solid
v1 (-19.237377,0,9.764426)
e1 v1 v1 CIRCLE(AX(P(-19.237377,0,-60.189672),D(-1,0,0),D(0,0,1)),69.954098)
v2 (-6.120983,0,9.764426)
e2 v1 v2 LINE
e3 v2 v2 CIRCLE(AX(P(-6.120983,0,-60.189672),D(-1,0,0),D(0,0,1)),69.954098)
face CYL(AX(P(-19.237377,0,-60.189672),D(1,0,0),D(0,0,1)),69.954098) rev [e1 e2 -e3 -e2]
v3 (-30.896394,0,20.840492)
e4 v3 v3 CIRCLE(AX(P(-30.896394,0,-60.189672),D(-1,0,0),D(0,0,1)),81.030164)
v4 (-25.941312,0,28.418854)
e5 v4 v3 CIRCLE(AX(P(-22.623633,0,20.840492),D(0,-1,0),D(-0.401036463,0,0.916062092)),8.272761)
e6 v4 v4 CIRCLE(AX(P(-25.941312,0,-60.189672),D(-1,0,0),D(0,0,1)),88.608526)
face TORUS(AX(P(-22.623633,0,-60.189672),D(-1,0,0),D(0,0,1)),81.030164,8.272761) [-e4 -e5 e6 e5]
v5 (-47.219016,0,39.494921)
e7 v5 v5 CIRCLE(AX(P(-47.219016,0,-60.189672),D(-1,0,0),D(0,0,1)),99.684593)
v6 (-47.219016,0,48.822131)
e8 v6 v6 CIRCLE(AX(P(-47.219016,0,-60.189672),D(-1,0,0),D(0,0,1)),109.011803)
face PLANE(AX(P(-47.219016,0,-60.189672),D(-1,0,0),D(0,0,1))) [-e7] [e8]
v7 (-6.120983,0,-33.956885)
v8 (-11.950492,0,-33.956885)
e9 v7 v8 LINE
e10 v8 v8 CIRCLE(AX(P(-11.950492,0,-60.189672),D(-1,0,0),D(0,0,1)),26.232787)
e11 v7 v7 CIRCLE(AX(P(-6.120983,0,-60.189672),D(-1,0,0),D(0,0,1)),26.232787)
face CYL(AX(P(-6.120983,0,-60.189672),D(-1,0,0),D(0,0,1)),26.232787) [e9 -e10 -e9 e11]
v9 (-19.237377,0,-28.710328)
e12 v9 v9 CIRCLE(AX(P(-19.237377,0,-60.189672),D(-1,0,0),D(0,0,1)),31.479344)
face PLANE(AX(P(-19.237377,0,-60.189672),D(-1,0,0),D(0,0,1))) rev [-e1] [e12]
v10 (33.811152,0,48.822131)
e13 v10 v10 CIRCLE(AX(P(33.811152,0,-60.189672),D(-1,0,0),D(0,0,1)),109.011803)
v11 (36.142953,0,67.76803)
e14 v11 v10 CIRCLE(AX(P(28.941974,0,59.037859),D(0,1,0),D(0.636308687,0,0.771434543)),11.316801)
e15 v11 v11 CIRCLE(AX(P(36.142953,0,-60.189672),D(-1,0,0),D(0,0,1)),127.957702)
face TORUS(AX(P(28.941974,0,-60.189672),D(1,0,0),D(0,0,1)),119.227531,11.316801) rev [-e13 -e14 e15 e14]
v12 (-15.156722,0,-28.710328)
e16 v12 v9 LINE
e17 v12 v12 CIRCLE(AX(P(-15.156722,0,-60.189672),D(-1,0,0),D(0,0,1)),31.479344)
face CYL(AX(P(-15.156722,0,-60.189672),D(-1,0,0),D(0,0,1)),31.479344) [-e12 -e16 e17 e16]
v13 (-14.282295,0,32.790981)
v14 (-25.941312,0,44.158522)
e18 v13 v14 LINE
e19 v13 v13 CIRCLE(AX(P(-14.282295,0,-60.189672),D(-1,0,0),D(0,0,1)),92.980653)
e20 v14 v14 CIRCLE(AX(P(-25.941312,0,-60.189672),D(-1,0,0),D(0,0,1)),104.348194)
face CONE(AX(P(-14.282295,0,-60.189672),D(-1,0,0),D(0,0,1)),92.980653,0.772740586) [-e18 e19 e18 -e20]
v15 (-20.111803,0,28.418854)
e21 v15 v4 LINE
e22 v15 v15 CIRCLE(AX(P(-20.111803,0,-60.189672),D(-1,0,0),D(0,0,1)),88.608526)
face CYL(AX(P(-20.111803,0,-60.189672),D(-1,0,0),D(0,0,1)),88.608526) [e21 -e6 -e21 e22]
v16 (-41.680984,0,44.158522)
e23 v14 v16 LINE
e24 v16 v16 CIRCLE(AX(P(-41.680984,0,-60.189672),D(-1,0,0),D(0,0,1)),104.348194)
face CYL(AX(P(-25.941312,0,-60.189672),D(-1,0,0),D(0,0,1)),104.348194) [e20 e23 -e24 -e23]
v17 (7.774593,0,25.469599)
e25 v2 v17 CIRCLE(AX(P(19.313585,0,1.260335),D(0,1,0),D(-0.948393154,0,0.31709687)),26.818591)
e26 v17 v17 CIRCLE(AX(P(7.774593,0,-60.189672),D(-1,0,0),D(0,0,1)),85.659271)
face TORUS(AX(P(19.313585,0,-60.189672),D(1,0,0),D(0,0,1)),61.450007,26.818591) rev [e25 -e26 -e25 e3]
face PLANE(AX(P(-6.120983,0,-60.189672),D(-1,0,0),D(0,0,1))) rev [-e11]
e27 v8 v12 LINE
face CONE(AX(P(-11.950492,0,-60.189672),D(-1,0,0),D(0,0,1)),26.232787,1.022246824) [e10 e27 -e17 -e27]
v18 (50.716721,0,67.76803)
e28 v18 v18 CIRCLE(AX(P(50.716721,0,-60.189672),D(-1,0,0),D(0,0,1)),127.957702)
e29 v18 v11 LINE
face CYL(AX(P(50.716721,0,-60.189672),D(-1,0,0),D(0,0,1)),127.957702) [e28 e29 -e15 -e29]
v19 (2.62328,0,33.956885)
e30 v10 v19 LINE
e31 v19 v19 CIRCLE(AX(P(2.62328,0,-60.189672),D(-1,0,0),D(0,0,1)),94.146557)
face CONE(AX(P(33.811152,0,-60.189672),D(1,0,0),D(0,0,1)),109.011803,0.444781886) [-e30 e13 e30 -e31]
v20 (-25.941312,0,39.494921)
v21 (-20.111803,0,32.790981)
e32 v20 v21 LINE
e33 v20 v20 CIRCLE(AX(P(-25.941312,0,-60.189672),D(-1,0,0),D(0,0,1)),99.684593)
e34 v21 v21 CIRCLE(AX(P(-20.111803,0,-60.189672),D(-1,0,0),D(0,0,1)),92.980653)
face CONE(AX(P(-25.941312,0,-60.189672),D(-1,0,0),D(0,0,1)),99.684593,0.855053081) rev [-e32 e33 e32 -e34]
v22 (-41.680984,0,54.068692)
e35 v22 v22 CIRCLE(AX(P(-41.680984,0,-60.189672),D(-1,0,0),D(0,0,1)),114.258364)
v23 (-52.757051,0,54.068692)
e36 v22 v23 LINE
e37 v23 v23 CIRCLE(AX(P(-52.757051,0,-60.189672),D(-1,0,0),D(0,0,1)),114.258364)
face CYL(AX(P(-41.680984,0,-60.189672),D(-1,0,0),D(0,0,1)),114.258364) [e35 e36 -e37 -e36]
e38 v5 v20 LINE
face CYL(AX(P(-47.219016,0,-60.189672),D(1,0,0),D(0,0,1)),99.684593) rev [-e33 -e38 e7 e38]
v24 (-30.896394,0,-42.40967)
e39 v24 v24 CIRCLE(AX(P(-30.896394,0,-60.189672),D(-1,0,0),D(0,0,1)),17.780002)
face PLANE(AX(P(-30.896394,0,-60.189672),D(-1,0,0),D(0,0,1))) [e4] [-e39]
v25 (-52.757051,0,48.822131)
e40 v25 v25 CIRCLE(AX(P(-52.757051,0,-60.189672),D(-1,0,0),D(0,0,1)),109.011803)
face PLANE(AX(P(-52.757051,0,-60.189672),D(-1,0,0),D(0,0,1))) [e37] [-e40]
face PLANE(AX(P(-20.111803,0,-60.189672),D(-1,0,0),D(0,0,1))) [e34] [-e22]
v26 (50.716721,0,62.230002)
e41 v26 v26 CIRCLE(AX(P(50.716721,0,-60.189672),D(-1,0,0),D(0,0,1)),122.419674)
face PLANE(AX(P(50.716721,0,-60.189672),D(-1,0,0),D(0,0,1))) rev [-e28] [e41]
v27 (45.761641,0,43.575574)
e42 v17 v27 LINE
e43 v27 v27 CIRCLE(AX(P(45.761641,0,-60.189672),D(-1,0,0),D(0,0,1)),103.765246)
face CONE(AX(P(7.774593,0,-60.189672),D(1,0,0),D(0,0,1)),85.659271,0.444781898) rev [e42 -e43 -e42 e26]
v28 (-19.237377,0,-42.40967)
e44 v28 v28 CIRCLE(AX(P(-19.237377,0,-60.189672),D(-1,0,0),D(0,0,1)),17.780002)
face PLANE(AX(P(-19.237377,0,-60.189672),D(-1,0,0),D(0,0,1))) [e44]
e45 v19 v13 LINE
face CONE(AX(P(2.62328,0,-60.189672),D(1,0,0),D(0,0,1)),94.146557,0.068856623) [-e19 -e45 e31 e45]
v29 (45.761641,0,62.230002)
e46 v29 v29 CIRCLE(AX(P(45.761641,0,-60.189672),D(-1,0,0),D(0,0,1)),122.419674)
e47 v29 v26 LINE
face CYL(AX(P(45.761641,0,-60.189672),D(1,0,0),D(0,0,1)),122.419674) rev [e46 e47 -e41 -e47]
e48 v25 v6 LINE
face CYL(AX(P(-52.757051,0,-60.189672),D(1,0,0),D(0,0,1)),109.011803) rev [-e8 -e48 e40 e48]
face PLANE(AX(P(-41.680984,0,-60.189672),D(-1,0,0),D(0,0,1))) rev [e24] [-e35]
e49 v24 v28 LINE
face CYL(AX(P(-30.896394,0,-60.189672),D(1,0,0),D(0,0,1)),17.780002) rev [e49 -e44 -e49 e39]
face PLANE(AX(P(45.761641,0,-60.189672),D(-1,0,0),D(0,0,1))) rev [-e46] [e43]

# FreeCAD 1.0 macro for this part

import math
import FreeCAD as App
import Part
import Sketcher
from FreeCAD import Vector
Q = App.Units.Quantity

doc = App.newDocument("Part")
body = doc.addObject("PartDesign::Body", "Body")

# Sketch on XZ plane
sketch1 = body.newObject("Sketcher::SketchObject", "Sketch")
sketch1.AttachmentSupport = (doc.getObject("XZ_Plane"), [""])
sketch1.MapMode = "FlatFace"
sketch1.addGeometry(Part.LineSegment(Vector(33.811152, 48.822131, 0), Vector(2.62328, 33.956885, 0)), False)
sketch1.addGeometry(Part.LineSegment(Vector(2.62328, 33.956885, 0), Vector(-14.282295, 32.790981, 0)), False)
sketch1.addGeometry(Part.LineSegment(Vector(-14.282295, 32.790981, 0), Vector(-25.941312, 44.158522, 0)), False)
sketch1.addGeometry(Part.LineSegment(Vector(-25.941312, 44.158522, 0), Vector(-41.680984, 44.158522, 0)), False)
sketch1.addGeometry(Part.LineSegment(Vector(-41.680984, 44.158522, 0), Vector(-41.680984, 54.068692, 0)), False)
sketch1.addGeometry(Part.LineSegment(Vector(-41.680984, 54.068692, 0), Vector(-52.757051, 54.068692, 0)), False)
sketch1.addGeometry(Part.LineSegment(Vector(-52.757051, 54.068692, 0), Vector(-52.757051, 48.822131, 0)), False)
sketch1.addGeometry(Part.LineSegment(Vector(-52.757051, 48.822131, 0), Vector(-47.219016, 48.822131, 0)), False)
sketch1.addGeometry(Part.LineSegment(Vector(-47.219016, 48.822131, 0), Vector(-47.219016, 39.494921, 0)), False)
sketch1.addGeometry(Part.LineSegment(Vector(-47.219016, 39.494921, 0), Vector(-25.941312, 39.494921, 0)), False)
sketch1.addGeometry(Part.LineSegment(Vector(-25.941312, 39.494921, 0), Vector(-20.111803, 32.790981, 0)), False)
sketch1.addGeometry(Part.LineSegment(Vector(-20.111803, 32.790981, 0), Vector(-20.111803, 28.418854, 0)), False)
sketch1.addGeometry(Part.LineSegment(Vector(-20.111803, 28.418854, 0), Vector(-25.941312, 28.418854, 0)), False)
sketch1.addGeometry(Part.ArcOfCircle(Part.Circle(Vector(-22.623633, 20.840492, 0), Vector(0, 0, 1), 8.272761), math.radians(113.642989), math.radians(179.999997)), False)
sketch1.addGeometry(Part.LineSegment(Vector(-30.896394, 20.840492, 0), Vector(-30.896394, -42.40967, 0)), False)
sketch1.addGeometry(Part.LineSegment(Vector(-30.896394, -42.40967, 0), Vector(-19.237377, -42.40967, 0)), False)
sketch1.addGeometry(Part.LineSegment(Vector(-19.237377, -42.40967, 0), Vector(-19.237377, -60.189672, 0)), False)
sketch1.addGeometry(Part.LineSegment(Vector(-19.237377, -60.189672, 0), Vector(-6.120983, -60.189672, 0)), False)
sketch1.addGeometry(Part.LineSegment(Vector(-6.120983, -60.189672, 0), Vector(-6.120983, -33.956885, 0)), False)
sketch1.addGeometry(Part.LineSegment(Vector(-6.120983, -33.956885, 0), Vector(-11.950492, -33.956885, 0)), False)
sketch1.addGeometry(Part.LineSegment(Vector(-11.950492, -33.956885, 0), Vector(-15.156722, -28.710328, 0)), False)
sketch1.addGeometry(Part.LineSegment(Vector(-15.156722, -28.710328, 0), Vector(-19.237377, -28.710328, 0)), False)
sketch1.addGeometry(Part.LineSegment(Vector(-19.237377, -28.710328, 0), Vector(-19.237377, 9.764426, 0)), False)
sketch1.addGeometry(Part.LineSegment(Vector(-19.237377, 9.764426, 0), Vector(-6.120983, 9.764426, 0)), False)
sketch1.addGeometry(Part.ArcOfCircle(Part.Circle(Vector(19.313585, 1.260335, 0), Vector(0, 0, 1), 26.818591), math.radians(115.48412), math.radians(161.512554)), False)
sketch1.addGeometry(Part.LineSegment(Vector(7.774593, 25.469599, 0), Vector(45.761641, 43.575574, 0)), False)
sketch1.addGeometry(Part.LineSegment(Vector(45.761641, 43.575574, 0), Vector(45.761641, 62.230002, 0)), False)
sketch1.addGeometry(Part.LineSegment(Vector(45.761641, 62.230002, 0), Vector(50.716721, 62.230002, 0)), False)
sketch1.addGeometry(Part.LineSegment(Vector(50.716721, 62.230002, 0), Vector(50.716721, 67.76803, 0)), False)
sketch1.addGeometry(Part.LineSegment(Vector(50.716721, 67.76803, 0), Vector(36.142953, 67.76803, 0)), False)
sketch1.addGeometry(Part.ArcOfCircle(Part.Circle(Vector(28.941974, 59.037859, 0), Vector(0, 0, 1), 11.316801), math.radians(-64.515877), math.radians(50.482885)), False)
sketch1.addGeometry(Part.LineSegment(Vector(50.716721, -60.189672, 0), Vector(-52.757051, -60.189672, 0)), True)  # axis
sketch1.addConstraint(Sketcher.Constraint("Coincident", 0, 2, 1, 1))
sketch1.addConstraint(Sketcher.Constraint("Coincident", 1, 2, 2, 1))
sketch1.addConstraint(Sketcher.Constraint("Coincident", 2, 2, 3, 1))
sketch1.addConstraint(Sketcher.Constraint("Coincident", 3, 2, 4, 1))
sketch1.addConstraint(Sketcher.Constraint("Coincident", 4, 2, 5, 1))
sketch1.addConstraint(Sketcher.Constraint("Coincident", 5, 2, 6, 1))
sketch1.addConstraint(Sketcher.Constraint("Coincident", 6, 2, 7, 1))
sketch1.addConstraint(Sketcher.Constraint("Coincident", 7, 2, 8, 1))
sketch1.addConstraint(Sketcher.Constraint("Coincident", 8, 2, 9, 1))
sketch1.addConstraint(Sketcher.Constraint("Coincident", 9, 2, 10, 1))
sketch1.addConstraint(Sketcher.Constraint("Coincident", 10, 2, 11, 1))
sketch1.addConstraint(Sketcher.Constraint("Coincident", 11, 2, 12, 1))
sketch1.addConstraint(Sketcher.Constraint("Coincident", 12, 2, 13, 1))
sketch1.addConstraint(Sketcher.Constraint("Coincident", 13, 2, 14, 1))
sketch1.addConstraint(Sketcher.Constraint("Coincident", 14, 2, 15, 1))
sketch1.addConstraint(Sketcher.Constraint("Coincident", 15, 2, 16, 1))
sketch1.addConstraint(Sketcher.Constraint("Coincident", 16, 2, 17, 1))
sketch1.addConstraint(Sketcher.Constraint("Coincident", 17, 2, 18, 1))
sketch1.addConstraint(Sketcher.Constraint("Coincident", 18, 2, 19, 1))
sketch1.addConstraint(Sketcher.Constraint("Coincident", 19, 2, 20, 1))
sketch1.addConstraint(Sketcher.Constraint("Coincident", 20, 2, 21, 1))
sketch1.addConstraint(Sketcher.Constraint("Coincident", 21, 2, 22, 1))
sketch1.addConstraint(Sketcher.Constraint("Coincident", 22, 2, 23, 1))
sketch1.addConstraint(Sketcher.Constraint("Coincident", 23, 2, 24, 2))
sketch1.addConstraint(Sketcher.Constraint("Coincident", 24, 1, 25, 1))
sketch1.addConstraint(Sketcher.Constraint("Coincident", 25, 2, 26, 1))
sketch1.addConstraint(Sketcher.Constraint("Coincident", 26, 2, 27, 1))
sketch1.addConstraint(Sketcher.Constraint("Coincident", 27, 2, 28, 1))
sketch1.addConstraint(Sketcher.Constraint("Coincident", 28, 2, 29, 1))
sketch1.addConstraint(Sketcher.Constraint("Coincident", 29, 2, 30, 2))
sketch1.addConstraint(Sketcher.Constraint("Coincident", 30, 1, 0, 1))
sketch1.addConstraint(Sketcher.Constraint("Horizontal", 3))
sketch1.addConstraint(Sketcher.Constraint("Vertical", 4))
sketch1.addConstraint(Sketcher.Constraint("Horizontal", 5))
sketch1.addConstraint(Sketcher.Constraint("Vertical", 6))
sketch1.addConstraint(Sketcher.Constraint("Horizontal", 7))
sketch1.addConstraint(Sketcher.Constraint("Vertical", 8))
sketch1.addConstraint(Sketcher.Constraint("Horizontal", 9))
sketch1.addConstraint(Sketcher.Constraint("Vertical", 11))
sketch1.addConstraint(Sketcher.Constraint("Horizontal", 12))
sketch1.addConstraint(Sketcher.Constraint("Vertical", 14))
sketch1.addConstraint(Sketcher.Constraint("Horizontal", 15))
sketch1.addConstraint(Sketcher.Constraint("Vertical", 16))
sketch1.addConstraint(Sketcher.Constraint("Horizontal", 17))
sketch1.addConstraint(Sketcher.Constraint("Vertical", 18))
sketch1.addConstraint(Sketcher.Constraint("Horizontal", 19))
sketch1.addConstraint(Sketcher.Constraint("Horizontal", 21))
sketch1.addConstraint(Sketcher.Constraint("Vertical", 22))
sketch1.addConstraint(Sketcher.Constraint("Horizontal", 23))
sketch1.addConstraint(Sketcher.Constraint("Vertical", 26))
sketch1.addConstraint(Sketcher.Constraint("Horizontal", 27))
sketch1.addConstraint(Sketcher.Constraint("Vertical", 28))
sketch1.addConstraint(Sketcher.Constraint("Horizontal", 29))
sketch1.addConstraint(Sketcher.Constraint("Horizontal", 31))
sketch1.addConstraint(Sketcher.Constraint("DistanceY", 16, 2, 16, 1, Q("0.7000001 in")))
sketch1.addConstraint(Sketcher.Constraint("DistanceY", 31, 2, 14, 2, Q("0.7000001 in")))
sketch1.addConstraint(Sketcher.Constraint("DistanceY", -1, 1, 26, 2, Q("2.4500001 in")))
sketch1.addConstraint(Sketcher.Constraint("Radius", 30, 11.316801))
sketch1.addConstraint(Sketcher.Constraint("Radius", 13, 8.272761))
sketch1.addConstraint(Sketcher.Constraint("Radius", 24, 26.818591))
sketch1.addConstraint(Sketcher.Constraint("DistanceX", 30, 3, 30, 1, Q("0.1916999 in")))
sketch1.addConstraint(Sketcher.Constraint("DistanceX", 12, 2, 12, 1, 5.829509))
sketch1.addConstraint(Sketcher.Constraint("DistanceX", 19, 2, 19, 1, 5.829509))
sketch1.addConstraint(Sketcher.Constraint("DistanceX", 27, 1, 27, 2, 4.95508))
sketch1.addConstraint(Sketcher.Constraint("DistanceX", 29, 2, 29, 1, 14.573768))
sketch1.addConstraint(Sketcher.Constraint("DistanceX", 31, 2, 31, 1, 103.473772))
sketch1.addConstraint(Sketcher.Constraint("DistanceY", 4, 1, 4, 2, 9.91017))
sketch1.addConstraint(Sketcher.Constraint("DistanceY", 6, 2, 6, 1, 5.246561))
sketch1.addConstraint(Sketcher.Constraint("DistanceY", 8, 2, 8, 1, 9.32721))
sketch1.addConstraint(Sketcher.Constraint("DistanceY", -1, 1, 24, 1, 25.469599))
sketch1.addConstraint(Sketcher.Constraint("DistanceY", 13, 3, 4, 2, 33.2282))
sketch1.addConstraint(Sketcher.Constraint("DistanceX", 14, 2, 19, 2, 18.945902))
sketch1.addConstraint(Sketcher.Constraint("DistanceX", 30, 1, 29, 2, 2.331801))
sketch1.addConstraint(Sketcher.Constraint("DistanceX", 16, 2, 31, 1, 69.954098))
sketch1.addConstraint(Sketcher.Constraint("Distance", 0, 34.549369))
sketch1.addConstraint(Sketcher.Constraint("Distance", 1, 16.945731))
sketch1.addConstraint(Sketcher.Constraint("Distance", 2, 16.28354))
sketch1.addConstraint(Sketcher.Constraint("Distance", 10, 8.88403))
sketch1.addConstraint(Sketcher.Constraint("Distance", 20, 6.14868))
sketch1.addConstraint(Sketcher.Constraint("DistanceX", 3, 2, 3, 1, 15.739672))
sketch1.addConstraint(Sketcher.Constraint("DistanceX", 5, 2, 5, 1, 11.076067))
sketch1.addConstraint(Sketcher.Constraint("DistanceX", 7, 1, 7, 2, 5.538035))
sketch1.addConstraint(Sketcher.Constraint("DistanceX", 9, 1, 9, 2, 21.277704))
sketch1.addConstraint(Sketcher.Constraint("DistanceX", 15, 1, 15, 2, 11.659017))
sketch1.addConstraint(Sketcher.Constraint("DistanceX", 21, 2, 21, 1, 4.080655))
sketch1.addConstraint(Sketcher.Constraint("DistanceX", 23, 1, 23, 2, 13.116394))
sketch1.addConstraint(Sketcher.Constraint("DistanceY", 11, 2, 11, 1, 4.372127))
sketch1.addConstraint(Sketcher.Constraint("DistanceY", 14, 2, 14, 1, 63.250162))
sketch1.addConstraint(Sketcher.Constraint("DistanceY", 18, 1, 18, 2, 26.232787))
sketch1.addConstraint(Sketcher.Constraint("DistanceY", 22, 1, 22, 2, 38.474754))
sketch1.addConstraint(Sketcher.Constraint("DistanceY", 26, 1, 26, 2, 18.654428))
sketch1.addConstraint(Sketcher.Constraint("DistanceY", 28, 1, 28, 2, 5.538028))
sketch1.addConstraint(Sketcher.Constraint("DistanceY", -1, 1, 13, 3, 20.840492))
sketch1.addConstraint(Sketcher.Constraint("DistanceX", -1, 1, 0, 2, 2.62328))
sketch1.addConstraint(Sketcher.Constraint("DistanceY", -1, 1, 1, 2, 32.790981))
sketch1.addConstraint(Sketcher.Constraint("DistanceX", 2, 2, -1, 1, 25.941312))
sketch1.addConstraint(Sketcher.Constraint("DistanceY", -1, 1, 10, 2, 32.790981))
sketch1.addConstraint(Sketcher.Constraint("DistanceY", 14, 2, -1, 1, 42.40967))
sketch1.addConstraint(Sketcher.Constraint("DistanceY", 20, 2, -1, 1, 28.710328))
sketch1.addConstraint(Sketcher.Constraint("DistanceX", 24, 3, 30, 3, 9.62839))
revolution = body.newObject("PartDesign::Revolution", "Revolution")
revolution.Profile = sketch1
revolution.ReferenceAxis = (sketch1, ["Axis0"])
revolution.Angle = 360

doc.recompute()
